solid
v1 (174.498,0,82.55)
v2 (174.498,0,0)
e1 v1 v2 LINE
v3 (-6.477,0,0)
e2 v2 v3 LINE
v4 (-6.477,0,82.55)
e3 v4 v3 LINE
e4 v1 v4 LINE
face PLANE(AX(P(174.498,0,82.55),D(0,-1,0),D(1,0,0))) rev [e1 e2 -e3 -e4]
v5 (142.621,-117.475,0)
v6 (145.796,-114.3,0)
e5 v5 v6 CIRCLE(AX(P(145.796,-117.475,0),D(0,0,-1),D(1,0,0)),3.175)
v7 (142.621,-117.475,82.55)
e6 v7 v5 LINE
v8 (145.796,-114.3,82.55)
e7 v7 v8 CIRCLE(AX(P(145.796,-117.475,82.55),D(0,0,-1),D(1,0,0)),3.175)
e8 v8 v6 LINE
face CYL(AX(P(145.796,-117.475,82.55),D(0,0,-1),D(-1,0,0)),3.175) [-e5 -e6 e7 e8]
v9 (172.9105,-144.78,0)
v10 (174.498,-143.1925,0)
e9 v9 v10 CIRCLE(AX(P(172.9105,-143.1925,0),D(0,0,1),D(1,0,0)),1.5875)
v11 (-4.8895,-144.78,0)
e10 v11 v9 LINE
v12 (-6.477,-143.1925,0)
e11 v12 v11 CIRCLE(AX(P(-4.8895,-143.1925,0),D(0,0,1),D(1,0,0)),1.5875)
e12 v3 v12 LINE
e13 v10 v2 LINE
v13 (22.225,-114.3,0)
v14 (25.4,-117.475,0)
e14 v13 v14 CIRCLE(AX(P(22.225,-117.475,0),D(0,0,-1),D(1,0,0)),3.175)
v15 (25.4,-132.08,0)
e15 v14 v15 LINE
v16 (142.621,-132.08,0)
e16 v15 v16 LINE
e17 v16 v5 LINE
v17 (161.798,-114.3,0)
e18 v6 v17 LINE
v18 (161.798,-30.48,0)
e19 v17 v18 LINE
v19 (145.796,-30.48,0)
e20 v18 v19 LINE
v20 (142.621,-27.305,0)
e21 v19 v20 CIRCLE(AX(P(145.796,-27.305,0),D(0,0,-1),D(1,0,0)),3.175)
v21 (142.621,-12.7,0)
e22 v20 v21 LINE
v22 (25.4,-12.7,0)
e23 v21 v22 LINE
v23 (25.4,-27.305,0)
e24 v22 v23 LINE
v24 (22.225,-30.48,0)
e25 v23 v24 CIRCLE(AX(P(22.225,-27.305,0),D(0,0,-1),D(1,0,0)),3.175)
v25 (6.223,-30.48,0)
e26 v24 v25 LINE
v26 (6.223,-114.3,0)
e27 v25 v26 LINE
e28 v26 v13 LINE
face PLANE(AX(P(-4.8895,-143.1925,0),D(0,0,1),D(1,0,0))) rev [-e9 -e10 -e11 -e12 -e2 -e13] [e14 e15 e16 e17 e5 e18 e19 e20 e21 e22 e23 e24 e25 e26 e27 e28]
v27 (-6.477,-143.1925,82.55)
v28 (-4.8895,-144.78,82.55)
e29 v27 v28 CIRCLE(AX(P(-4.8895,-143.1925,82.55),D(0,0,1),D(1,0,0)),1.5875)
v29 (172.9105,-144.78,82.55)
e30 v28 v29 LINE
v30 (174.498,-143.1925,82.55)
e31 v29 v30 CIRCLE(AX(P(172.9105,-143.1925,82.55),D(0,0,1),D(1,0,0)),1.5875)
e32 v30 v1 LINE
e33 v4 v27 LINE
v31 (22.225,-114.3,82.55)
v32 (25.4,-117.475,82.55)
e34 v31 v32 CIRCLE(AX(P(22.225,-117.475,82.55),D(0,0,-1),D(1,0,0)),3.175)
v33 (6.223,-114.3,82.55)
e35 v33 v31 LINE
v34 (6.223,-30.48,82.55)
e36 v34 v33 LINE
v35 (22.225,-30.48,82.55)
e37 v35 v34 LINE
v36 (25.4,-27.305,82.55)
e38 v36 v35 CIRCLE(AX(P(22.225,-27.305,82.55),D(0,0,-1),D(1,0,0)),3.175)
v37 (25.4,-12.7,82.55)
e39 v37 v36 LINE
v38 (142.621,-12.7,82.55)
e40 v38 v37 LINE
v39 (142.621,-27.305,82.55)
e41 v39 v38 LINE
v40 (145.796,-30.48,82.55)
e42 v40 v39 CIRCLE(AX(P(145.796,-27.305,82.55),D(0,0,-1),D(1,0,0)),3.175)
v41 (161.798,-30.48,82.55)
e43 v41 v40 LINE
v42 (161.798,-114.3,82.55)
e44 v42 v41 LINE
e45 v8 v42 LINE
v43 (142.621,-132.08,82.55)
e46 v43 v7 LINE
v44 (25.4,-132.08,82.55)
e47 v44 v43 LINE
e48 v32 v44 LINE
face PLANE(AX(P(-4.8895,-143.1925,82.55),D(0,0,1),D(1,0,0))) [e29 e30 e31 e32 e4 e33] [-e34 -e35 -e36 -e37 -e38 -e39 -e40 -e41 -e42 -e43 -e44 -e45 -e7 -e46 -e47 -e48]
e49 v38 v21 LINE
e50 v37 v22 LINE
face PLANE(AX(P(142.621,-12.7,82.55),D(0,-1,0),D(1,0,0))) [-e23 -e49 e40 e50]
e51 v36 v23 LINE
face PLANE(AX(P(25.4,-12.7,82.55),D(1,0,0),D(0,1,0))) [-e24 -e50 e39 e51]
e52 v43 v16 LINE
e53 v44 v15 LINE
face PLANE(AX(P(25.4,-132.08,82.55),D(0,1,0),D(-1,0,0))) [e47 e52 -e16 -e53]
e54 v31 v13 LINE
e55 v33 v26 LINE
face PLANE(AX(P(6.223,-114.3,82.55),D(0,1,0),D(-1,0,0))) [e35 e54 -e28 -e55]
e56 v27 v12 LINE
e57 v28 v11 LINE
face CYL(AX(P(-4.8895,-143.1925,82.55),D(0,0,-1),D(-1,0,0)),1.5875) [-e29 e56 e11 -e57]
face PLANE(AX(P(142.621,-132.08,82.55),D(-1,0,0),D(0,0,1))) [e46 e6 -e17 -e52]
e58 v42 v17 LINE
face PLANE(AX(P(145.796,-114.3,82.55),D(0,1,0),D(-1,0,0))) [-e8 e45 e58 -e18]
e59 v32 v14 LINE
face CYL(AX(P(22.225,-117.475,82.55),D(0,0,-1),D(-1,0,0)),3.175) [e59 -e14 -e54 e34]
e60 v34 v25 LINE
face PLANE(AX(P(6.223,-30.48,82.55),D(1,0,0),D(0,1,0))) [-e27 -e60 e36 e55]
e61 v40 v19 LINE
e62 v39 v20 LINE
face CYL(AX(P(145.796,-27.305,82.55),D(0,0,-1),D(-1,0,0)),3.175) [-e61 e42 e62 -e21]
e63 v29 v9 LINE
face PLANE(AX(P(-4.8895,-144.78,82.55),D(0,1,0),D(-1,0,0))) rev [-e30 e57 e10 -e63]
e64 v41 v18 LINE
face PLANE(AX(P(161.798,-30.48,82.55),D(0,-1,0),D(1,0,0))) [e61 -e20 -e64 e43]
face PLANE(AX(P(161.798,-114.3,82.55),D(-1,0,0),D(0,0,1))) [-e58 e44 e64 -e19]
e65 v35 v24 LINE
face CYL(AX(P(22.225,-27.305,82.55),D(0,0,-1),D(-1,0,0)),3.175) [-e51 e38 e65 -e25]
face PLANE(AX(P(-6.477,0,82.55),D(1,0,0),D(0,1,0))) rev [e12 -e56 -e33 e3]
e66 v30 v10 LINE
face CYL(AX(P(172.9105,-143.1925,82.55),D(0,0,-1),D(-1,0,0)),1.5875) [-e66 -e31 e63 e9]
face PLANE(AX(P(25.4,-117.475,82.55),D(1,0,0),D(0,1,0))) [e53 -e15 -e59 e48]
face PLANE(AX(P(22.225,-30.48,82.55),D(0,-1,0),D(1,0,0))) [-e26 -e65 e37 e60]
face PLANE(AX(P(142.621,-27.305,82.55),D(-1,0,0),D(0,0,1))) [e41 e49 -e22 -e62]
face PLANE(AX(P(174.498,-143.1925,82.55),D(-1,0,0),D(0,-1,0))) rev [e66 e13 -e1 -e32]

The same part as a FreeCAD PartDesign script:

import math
import FreeCAD as App
import Part
import Sketcher

V = App.Vector
Q = App.Units.Quantity

doc = App.newDocument("Part")
body = doc.addObject("PartDesign::Body", "Body")

sketch1 = body.newObject("Sketcher::SketchObject", "Sketch")
sketch1.AttachmentSupport = (doc.getObject("XY_Plane"), [""])
sketch1.MapMode = "FlatFace"
sketch1.addGeometry([
    Part.LineSegment(V(174.5, 0, 0), V(-6.5, 0, 0)),
    Part.LineSegment(V(-6.5, 0, 0), V(-6.5, -143.2, 0)),
    Part.ArcOfCircle(Part.Circle(V(-4.9, -143.2, 0), V(0, 0, 1), 1.6), math.radians(180), math.radians(270)),
    Part.LineSegment(V(-4.9, -144.8, 0), V(172.9, -144.8, 0)),
    Part.ArcOfCircle(Part.Circle(V(172.9, -143.2, 0), V(0, 0, 1), 1.6), math.radians(-90), math.radians(0)),
    Part.LineSegment(V(174.5, -143.2, 0), V(174.5, 0, 0)),
    Part.LineSegment(V(22.2, -114.3, 0), V(6.2, -114.3, 0)),
    Part.LineSegment(V(6.2, -114.3, 0), V(6.2, -30.5, 0)),
    Part.LineSegment(V(6.2, -30.5, 0), V(22.2, -30.5, 0)),
    Part.ArcOfCircle(Part.Circle(V(22.2, -27.3, 0), V(0, 0, 1), 3.2), math.radians(-90), math.radians(0)),
    Part.LineSegment(V(25.4, -27.3, 0), V(25.4, -12.7, 0)),
    Part.LineSegment(V(25.4, -12.7, 0), V(142.6, -12.7, 0)),
    Part.LineSegment(V(142.6, -12.7, 0), V(142.6, -27.3, 0)),
    Part.ArcOfCircle(Part.Circle(V(145.8, -27.3, 0), V(0, 0, 1), 3.2), math.radians(-180), math.radians(-90)),
    Part.LineSegment(V(145.8, -30.5, 0), V(161.8, -30.5, 0)),
    Part.LineSegment(V(161.8, -30.5, 0), V(161.8, -114.3, 0)),
    Part.LineSegment(V(161.8, -114.3, 0), V(145.8, -114.3, 0)),
    Part.ArcOfCircle(Part.Circle(V(145.8, -117.5, 0), V(0, 0, 1), 3.2), math.radians(90), math.radians(180)),
    Part.LineSegment(V(142.6, -117.5, 0), V(142.6, -132.1, 0)),
    Part.LineSegment(V(142.6, -132.1, 0), V(25.4, -132.1, 0)),
    Part.LineSegment(V(25.4, -132.1, 0), V(25.4, -117.5, 0)),
    Part.ArcOfCircle(Part.Circle(V(22.2, -117.5, 0), V(0, 0, 1), 3.2), math.radians(0), math.radians(90)),
], False)
sketch1.addConstraint([
    Sketcher.Constraint("Coincident", 0, 2, 1, 1),
    Sketcher.Constraint("Tangent", 1, 2, 2, 1),
    Sketcher.Constraint("Tangent", 2, 2, 3, 1),
    Sketcher.Constraint("Tangent", 3, 2, 4, 1),
    Sketcher.Constraint("Tangent", 4, 2, 5, 1),
    Sketcher.Constraint("Coincident", 5, 2, 0, 1),
    Sketcher.Constraint("Coincident", 6, 2, 7, 1),
    Sketcher.Constraint("Coincident", 7, 2, 8, 1),
    Sketcher.Constraint("Tangent", 8, 2, 9, 1),
    Sketcher.Constraint("Tangent", 9, 2, 10, 1),
    Sketcher.Constraint("Coincident", 10, 2, 11, 1),
    Sketcher.Constraint("Coincident", 11, 2, 12, 1),
    Sketcher.Constraint("Tangent", 12, 2, 13, 1),
    Sketcher.Constraint("Tangent", 13, 2, 14, 1),
    Sketcher.Constraint("Coincident", 14, 2, 15, 1),
    Sketcher.Constraint("Coincident", 15, 2, 16, 1),
    Sketcher.Constraint("Tangent", 16, 2, 17, 1),
    Sketcher.Constraint("Tangent", 17, 2, 18, 1),
    Sketcher.Constraint("Coincident", 18, 2, 19, 1),
    Sketcher.Constraint("Coincident", 19, 2, 20, 1),
    Sketcher.Constraint("Tangent", 20, 2, 21, 1),
    Sketcher.Constraint("Tangent", 21, 2, 6, 1),
    Sketcher.Constraint("Horizontal", 0),
    Sketcher.Constraint("Vertical", 1),
    Sketcher.Constraint("Horizontal", 3),
    Sketcher.Constraint("Vertical", 5),
    Sketcher.Constraint("Horizontal", 6),
    Sketcher.Constraint("Vertical", 7),
    Sketcher.Constraint("Horizontal", 8),
    Sketcher.Constraint("Vertical", 10),
    Sketcher.Constraint("Horizontal", 11),
    Sketcher.Constraint("Vertical", 12),
    Sketcher.Constraint("Horizontal", 14),
    Sketcher.Constraint("Vertical", 15),
    Sketcher.Constraint("Horizontal", 16),
    Sketcher.Constraint("Vertical", 18),
    Sketcher.Constraint("Horizontal", 19),
    Sketcher.Constraint("Vertical", 20),
    Sketcher.Constraint("Equal", 2, 4),
    Sketcher.Constraint("Equal", 9, 13),
    Sketcher.Constraint("Equal", 13, 17),
    Sketcher.Constraint("Equal", 17, 21),
    Sketcher.Constraint("PointOnObject", 0, 2, -1),
    Sketcher.Constraint("Horizontal", 9, 3, 13, 3),
    Sketcher.Constraint("Horizontal", 17, 3, 21, 3),
    Sketcher.Constraint("Vertical", 13, 3, 17, 3),
    Sketcher.Constraint("Vertical", 9, 3, 21, 3),
    Sketcher.Constraint("Equal", 8, 14),
    Sketcher.Constraint("Equal", 12, 18),
    Sketcher.Constraint("DistanceX", 3, 1, 3, 2, Q("7 in")),
    Sketcher.Constraint("DistanceY", 7, 1, 7, 2, Q("3.3 in")),
    Sketcher.Constraint("DistanceX", -1, 1, 9, 2, Q("1 in")),
    Sketcher.Constraint("Radius", 2, Q("0.0625 in")),
    Sketcher.Constraint("Radius", 9, Q("0.125 in")),
    Sketcher.Constraint("DistanceX", 6, 2, 6, 1, Q("0.63 in")),
    Sketcher.Constraint("DistanceY", 2, 2, -1, 1, Q("5.7 in")),
    Sketcher.Constraint("DistanceY", 6, 2, -1, 1, Q("4.5 in")),
    Sketcher.Constraint("DistanceY", 10, 2, -1, 1, Q("0.5 in")),
    Sketcher.Constraint("DistanceX", 1, 2, 6, 2, Q("0.5 in")),
    Sketcher.Constraint("DistanceX", 14, 2, 5, 2, Q("0.5 in")),
])
pad1 = body.newObject("PartDesign::Pad", "Pad")
pad1.Profile = sketch1
pad1.Length = Q("3.25 in")

doc.recompute()
